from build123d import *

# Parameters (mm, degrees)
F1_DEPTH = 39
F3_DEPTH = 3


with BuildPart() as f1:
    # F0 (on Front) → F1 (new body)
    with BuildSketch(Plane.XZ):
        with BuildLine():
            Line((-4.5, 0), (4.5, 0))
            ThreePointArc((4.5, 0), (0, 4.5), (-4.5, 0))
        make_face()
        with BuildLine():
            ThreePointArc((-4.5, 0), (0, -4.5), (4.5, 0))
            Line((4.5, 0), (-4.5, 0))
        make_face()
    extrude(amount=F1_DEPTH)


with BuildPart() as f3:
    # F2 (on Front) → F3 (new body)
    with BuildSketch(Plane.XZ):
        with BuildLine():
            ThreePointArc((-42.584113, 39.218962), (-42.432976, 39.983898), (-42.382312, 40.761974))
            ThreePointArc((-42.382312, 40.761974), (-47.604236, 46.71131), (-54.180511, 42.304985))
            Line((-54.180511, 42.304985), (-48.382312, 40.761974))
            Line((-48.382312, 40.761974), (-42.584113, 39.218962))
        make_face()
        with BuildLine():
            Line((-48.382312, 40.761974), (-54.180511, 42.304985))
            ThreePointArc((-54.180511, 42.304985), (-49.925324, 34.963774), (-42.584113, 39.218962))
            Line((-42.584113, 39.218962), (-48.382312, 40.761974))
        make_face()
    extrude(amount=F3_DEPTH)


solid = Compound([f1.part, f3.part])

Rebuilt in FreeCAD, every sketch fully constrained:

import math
import FreeCAD as App
import Part
import Sketcher

V = App.Vector

doc = App.newDocument("Part")
body = doc.addObject("PartDesign::Body", "Body")

sketch1 = doc.addObject("Sketcher::SketchObject", "Sketch")
body.addObject(sketch1)
sketch1.AttachmentSupport = (doc.XZ_Plane, [""])
sketch1.MapMode = "FlatFace"
sketch1.addGeometry(Part.Circle(V(0, 0, 0), V(0, 0, 1), 4.5), False)
sketch1.addConstraint([
    Sketcher.Constraint("Coincident", 0, 3, -1, 1),
    Sketcher.Constraint("Diameter", 0, 9.0),
])
pad1 = doc.addObject("PartDesign::Pad", "Pad")
body.addObject(pad1)
pad1.Profile = sketch1
pad1.Length = 39
body2 = doc.addObject("PartDesign::Body", "Body001")

sketch2 = doc.addObject("Sketcher::SketchObject", "Sketch001")
body2.addObject(sketch2)
sketch2.AttachmentSupport = (doc.getObject("XZ_Plane001"), [""])
sketch2.MapMode = "FlatFace"
sketch2.addGeometry([
    Part.ArcOfCircle(Part.Circle(V(-48.38229, 40.761972, 0), V(0, 0, 1), 5.999978), math.radians(-14.902162), math.radians(0.000021)),
    Part.ArcOfCircle(Part.Circle(V(-48.382312, 40.761974, 0), V(0, 0, 1), 6), math.radians(-0.000003), math.radians(165.097886)),
    Part.ArcOfCircle(Part.Circle(V(-48.382312, 40.761973, 0), V(0, 0, 1), 6), math.radians(165.097871), math.radians(345.097883)),
], False)
sketch2.addConstraint([
    Sketcher.Constraint("Coincident", 0, 2, 1, 1),
    Sketcher.Constraint("Coincident", 1, 2, 2, 1),
    Sketcher.Constraint("Coincident", 2, 2, 0, 1),
    Sketcher.Constraint("Coincident", 2, 3, 1, 3),
    Sketcher.Constraint("Radius", 1, 6.0),
    Sketcher.Constraint("Radius", 0, 5.999978),
    Sketcher.Constraint("DistanceX", 1, 2, 2, 3, 5.798199),
    Sketcher.Constraint("DistanceX", 2, 2, 0, 2, 0.201801),
    Sketcher.Constraint("DistanceX", 0, 3, -1, 1, 48.38229),
    Sketcher.Constraint("DistanceY", -1, 1, 0, 3, 40.761972),
    Sketcher.Constraint("DistanceY", 0, 2, 1, 2, 1.543011),
])
pad2 = doc.addObject("PartDesign::Pad", "Pad001")
body2.addObject(pad2)
pad2.Profile = sketch2
pad2.Length = 3

doc.recompute()
